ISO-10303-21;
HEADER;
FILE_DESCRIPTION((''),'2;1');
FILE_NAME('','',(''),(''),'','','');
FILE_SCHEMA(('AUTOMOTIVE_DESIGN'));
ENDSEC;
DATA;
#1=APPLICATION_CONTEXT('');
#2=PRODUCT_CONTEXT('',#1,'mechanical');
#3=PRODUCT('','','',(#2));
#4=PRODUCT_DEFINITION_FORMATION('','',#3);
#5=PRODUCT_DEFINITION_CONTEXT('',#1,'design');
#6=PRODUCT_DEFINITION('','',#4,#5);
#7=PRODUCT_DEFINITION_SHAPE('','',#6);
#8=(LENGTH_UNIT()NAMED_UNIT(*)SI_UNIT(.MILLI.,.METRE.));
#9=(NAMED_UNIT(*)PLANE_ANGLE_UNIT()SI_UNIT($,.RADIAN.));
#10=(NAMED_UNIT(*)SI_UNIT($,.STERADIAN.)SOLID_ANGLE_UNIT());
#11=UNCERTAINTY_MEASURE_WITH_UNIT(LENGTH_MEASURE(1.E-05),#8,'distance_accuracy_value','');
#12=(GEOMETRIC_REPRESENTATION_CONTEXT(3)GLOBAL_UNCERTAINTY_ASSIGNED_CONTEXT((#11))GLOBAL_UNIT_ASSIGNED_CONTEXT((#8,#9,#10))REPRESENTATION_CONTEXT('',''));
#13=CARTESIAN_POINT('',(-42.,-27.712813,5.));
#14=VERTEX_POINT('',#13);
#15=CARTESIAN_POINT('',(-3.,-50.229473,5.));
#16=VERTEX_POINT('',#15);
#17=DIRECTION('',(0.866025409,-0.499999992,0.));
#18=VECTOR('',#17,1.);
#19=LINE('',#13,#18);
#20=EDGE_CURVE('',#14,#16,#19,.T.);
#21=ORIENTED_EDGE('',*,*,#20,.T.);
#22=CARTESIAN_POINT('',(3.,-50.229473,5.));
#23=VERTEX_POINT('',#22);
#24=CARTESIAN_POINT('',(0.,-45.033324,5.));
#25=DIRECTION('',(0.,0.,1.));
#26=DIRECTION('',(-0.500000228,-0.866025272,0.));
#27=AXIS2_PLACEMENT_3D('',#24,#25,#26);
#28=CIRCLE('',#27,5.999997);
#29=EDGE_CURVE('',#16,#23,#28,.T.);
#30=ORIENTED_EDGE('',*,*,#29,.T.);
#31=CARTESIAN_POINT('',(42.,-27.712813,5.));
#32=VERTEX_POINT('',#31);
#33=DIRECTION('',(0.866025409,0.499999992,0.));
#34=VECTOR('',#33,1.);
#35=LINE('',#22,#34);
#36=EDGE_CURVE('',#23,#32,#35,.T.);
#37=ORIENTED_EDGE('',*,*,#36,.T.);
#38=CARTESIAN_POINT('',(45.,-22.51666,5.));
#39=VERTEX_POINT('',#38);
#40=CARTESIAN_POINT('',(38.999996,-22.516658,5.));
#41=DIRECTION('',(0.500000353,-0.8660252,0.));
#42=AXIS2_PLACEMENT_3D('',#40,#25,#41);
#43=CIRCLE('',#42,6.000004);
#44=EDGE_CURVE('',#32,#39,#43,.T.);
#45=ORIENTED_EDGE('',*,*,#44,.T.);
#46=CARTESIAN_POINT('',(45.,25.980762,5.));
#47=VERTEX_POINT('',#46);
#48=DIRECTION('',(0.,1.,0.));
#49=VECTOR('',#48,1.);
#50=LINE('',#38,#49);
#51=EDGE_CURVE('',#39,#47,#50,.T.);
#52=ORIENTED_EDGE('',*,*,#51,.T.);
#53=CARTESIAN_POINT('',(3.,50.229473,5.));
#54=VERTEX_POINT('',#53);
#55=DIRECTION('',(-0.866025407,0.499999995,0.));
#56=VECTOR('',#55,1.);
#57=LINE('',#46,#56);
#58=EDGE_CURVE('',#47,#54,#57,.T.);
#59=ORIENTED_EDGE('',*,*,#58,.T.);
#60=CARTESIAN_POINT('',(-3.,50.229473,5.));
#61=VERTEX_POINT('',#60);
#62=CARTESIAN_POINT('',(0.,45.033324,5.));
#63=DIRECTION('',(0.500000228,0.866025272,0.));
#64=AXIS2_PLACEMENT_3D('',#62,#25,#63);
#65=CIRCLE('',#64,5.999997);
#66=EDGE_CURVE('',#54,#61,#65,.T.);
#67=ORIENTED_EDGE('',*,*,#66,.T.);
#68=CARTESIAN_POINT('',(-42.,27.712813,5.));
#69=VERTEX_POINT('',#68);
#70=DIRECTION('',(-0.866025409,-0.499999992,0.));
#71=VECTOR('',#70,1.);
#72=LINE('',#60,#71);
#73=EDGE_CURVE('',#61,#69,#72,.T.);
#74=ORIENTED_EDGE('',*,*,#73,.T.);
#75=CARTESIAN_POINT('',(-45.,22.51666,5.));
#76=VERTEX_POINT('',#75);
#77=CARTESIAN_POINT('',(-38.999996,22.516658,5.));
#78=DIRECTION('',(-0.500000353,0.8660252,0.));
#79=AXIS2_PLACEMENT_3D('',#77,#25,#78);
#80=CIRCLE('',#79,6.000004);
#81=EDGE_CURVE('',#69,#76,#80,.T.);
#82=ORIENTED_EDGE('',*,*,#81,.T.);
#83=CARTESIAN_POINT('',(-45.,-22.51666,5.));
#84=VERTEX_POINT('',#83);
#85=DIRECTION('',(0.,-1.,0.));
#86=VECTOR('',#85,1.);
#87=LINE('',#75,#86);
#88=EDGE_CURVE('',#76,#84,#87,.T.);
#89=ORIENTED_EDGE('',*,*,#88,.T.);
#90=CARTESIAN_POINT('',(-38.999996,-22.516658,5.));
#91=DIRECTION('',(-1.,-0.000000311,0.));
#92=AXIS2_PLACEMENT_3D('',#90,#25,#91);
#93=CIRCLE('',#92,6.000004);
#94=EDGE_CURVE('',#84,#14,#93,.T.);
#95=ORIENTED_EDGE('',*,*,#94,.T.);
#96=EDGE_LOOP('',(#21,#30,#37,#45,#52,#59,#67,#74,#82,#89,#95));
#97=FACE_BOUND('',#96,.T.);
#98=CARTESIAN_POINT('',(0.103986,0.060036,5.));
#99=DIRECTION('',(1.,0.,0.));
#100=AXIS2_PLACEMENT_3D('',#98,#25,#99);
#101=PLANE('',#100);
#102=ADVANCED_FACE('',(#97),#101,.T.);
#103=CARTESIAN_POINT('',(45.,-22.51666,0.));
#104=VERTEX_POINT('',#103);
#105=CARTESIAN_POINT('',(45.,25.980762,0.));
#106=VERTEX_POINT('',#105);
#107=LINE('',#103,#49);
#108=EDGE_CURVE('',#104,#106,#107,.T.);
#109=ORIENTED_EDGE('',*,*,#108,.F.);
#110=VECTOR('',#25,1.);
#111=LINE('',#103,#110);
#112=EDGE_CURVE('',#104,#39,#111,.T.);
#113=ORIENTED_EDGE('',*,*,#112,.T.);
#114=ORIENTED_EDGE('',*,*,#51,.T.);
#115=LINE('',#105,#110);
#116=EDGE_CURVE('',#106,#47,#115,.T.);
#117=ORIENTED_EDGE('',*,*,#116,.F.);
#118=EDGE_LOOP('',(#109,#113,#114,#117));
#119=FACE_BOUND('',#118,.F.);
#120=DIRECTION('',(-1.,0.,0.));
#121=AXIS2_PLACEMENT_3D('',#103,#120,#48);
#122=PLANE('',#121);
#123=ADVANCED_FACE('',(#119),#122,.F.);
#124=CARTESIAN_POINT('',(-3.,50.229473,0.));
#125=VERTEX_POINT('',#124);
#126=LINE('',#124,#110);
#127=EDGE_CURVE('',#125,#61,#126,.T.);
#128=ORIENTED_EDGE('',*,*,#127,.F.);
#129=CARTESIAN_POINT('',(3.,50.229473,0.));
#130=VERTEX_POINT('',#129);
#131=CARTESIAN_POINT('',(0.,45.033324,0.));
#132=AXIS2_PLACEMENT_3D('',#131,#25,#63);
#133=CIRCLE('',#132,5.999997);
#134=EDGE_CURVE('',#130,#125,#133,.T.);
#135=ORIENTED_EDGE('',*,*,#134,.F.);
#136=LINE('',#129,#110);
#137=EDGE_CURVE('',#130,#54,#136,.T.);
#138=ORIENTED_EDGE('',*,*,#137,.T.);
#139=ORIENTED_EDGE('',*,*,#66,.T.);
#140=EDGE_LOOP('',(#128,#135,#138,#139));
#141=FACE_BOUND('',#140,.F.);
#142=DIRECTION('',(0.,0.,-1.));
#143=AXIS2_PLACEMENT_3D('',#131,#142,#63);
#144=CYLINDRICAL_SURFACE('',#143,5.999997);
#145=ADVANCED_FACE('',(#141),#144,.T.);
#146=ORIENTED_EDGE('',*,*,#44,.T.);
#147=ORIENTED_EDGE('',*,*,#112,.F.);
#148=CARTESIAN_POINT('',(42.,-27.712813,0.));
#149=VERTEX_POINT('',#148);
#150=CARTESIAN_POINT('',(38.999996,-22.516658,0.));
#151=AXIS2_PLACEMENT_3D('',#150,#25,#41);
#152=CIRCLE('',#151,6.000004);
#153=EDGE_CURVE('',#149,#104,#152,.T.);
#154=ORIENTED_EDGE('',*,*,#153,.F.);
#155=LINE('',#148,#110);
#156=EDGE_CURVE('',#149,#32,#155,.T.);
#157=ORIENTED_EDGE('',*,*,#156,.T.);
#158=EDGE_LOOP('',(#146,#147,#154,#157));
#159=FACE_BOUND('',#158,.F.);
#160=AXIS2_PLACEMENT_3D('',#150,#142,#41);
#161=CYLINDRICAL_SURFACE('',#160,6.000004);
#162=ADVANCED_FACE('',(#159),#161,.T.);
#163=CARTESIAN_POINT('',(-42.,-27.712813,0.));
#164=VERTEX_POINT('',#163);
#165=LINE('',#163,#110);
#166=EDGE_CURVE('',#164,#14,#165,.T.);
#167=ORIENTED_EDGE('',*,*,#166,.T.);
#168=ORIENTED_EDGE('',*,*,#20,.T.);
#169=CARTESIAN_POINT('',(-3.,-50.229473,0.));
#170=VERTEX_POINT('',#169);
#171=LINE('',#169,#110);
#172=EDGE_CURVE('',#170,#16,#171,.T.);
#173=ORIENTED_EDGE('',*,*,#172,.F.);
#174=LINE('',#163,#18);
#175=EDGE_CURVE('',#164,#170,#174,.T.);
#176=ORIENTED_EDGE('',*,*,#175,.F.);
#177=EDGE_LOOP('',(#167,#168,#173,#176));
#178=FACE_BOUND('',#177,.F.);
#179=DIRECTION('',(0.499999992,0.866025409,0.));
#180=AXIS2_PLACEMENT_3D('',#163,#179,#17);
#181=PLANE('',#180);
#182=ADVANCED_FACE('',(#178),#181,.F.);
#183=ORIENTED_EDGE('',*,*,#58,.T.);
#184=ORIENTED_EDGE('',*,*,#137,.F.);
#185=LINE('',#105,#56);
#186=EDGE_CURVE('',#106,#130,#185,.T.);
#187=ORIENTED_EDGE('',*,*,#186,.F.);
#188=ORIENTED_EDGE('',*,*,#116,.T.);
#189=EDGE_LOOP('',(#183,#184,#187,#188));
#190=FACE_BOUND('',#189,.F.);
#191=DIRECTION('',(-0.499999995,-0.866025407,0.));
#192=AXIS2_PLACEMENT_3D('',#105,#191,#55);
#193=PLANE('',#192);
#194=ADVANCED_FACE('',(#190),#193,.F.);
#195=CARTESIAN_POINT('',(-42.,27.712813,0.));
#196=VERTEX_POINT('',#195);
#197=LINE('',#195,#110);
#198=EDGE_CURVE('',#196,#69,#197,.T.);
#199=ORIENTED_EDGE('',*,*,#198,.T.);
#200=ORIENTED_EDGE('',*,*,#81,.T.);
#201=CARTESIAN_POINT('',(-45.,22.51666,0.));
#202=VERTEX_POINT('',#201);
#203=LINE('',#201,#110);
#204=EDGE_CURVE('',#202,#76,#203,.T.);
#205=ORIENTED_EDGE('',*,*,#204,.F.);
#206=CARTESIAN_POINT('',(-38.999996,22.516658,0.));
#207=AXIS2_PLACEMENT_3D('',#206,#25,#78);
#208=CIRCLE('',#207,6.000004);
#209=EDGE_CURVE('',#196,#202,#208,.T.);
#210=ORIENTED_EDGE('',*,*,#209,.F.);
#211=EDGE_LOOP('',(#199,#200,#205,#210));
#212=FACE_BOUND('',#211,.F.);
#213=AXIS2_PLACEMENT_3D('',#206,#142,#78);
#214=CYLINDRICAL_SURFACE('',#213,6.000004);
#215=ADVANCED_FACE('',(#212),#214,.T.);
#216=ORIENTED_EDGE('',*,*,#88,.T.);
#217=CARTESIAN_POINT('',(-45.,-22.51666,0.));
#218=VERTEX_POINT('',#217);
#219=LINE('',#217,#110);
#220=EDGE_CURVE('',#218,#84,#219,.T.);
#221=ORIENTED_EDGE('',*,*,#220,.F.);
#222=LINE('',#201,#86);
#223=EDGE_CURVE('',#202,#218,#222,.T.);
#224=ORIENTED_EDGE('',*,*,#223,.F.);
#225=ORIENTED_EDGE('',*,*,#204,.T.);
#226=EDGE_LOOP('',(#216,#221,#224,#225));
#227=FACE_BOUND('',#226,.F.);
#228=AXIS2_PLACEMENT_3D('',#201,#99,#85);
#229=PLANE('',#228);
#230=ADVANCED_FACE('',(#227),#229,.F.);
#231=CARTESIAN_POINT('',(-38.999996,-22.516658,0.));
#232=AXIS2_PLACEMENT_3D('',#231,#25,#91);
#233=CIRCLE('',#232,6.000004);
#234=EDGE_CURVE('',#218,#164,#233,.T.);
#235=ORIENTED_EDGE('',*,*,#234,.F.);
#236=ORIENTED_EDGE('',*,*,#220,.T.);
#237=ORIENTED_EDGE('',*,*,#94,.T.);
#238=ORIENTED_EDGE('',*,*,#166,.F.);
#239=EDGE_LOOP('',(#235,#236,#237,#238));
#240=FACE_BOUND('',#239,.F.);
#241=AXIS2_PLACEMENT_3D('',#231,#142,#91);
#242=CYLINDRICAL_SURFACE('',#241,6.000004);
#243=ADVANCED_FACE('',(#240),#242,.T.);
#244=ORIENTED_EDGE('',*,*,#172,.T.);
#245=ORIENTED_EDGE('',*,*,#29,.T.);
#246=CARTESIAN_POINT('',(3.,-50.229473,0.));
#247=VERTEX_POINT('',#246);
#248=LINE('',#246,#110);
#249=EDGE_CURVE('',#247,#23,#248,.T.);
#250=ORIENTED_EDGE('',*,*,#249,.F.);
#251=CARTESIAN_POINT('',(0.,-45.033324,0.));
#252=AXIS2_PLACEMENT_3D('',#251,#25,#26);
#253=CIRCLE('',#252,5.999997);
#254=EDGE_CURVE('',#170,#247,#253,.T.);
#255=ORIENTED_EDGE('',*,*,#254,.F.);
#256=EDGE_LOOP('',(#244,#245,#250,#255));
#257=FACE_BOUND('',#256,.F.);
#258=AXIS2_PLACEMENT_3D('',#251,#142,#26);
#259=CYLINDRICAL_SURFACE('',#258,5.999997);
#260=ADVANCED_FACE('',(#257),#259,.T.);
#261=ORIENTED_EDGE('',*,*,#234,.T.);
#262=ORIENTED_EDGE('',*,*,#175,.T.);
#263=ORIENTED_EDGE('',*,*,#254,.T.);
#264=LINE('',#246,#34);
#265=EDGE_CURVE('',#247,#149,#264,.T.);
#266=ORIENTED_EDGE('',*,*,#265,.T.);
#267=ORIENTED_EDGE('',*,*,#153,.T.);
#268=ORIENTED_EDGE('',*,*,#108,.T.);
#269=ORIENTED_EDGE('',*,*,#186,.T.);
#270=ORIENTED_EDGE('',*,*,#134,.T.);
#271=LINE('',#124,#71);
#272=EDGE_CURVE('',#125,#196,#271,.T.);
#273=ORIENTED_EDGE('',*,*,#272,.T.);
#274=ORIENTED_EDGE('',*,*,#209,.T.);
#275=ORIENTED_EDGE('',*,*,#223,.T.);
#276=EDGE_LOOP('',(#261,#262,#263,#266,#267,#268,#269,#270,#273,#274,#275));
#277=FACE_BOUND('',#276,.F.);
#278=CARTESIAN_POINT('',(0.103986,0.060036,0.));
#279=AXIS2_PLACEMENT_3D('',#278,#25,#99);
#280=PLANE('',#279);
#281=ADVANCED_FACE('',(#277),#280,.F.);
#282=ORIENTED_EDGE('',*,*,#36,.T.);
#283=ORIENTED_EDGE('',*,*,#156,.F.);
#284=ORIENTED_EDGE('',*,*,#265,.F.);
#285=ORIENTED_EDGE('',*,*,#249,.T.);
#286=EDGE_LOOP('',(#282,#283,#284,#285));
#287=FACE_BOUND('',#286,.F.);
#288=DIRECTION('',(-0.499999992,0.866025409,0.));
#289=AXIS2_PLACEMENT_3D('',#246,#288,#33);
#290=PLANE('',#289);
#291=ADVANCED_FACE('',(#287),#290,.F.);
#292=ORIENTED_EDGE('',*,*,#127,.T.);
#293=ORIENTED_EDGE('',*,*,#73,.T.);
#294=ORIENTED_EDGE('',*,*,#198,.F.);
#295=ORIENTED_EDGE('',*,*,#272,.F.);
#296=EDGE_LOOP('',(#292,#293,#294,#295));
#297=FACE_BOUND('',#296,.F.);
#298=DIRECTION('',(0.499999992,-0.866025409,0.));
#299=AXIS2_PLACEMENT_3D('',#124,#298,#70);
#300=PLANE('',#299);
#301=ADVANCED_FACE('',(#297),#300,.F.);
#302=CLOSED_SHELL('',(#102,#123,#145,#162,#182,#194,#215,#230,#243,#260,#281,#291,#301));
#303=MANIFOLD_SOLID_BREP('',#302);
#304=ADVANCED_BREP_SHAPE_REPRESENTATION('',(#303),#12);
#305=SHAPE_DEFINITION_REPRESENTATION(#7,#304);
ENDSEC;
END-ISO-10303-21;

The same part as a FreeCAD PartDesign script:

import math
import FreeCAD as App
import Part
import Sketcher
from FreeCAD import Vector
Q = App.Units.Quantity

doc = App.newDocument("Part")
params = doc.addObject("Spreadsheet::Sheet", "Params")
for row, (alias, value) in enumerate([
    ("pad1_length", "5 mm"),
], start=1):
    params.set(f"A{row}", alias)
    params.set(f"B{row}", "=" + value)
    params.setAlias(f"B{row}", alias)

body = doc.addObject("PartDesign::Body", "Body")

# Sketch on XY plane
sketch1 = body.newObject("Sketcher::SketchObject", "Sketch")
sketch1.AttachmentSupport = (doc.getObject("XY_Plane"), [""])
sketch1.MapMode = "FlatFace"
sketch1.addGeometry([
    Part.LineSegment(Vector(45, 26, 0), Vector(3, 50, 0)),  # 0
    Part.ArcOfCircle(Part.Circle(Vector(0, 45, 0), Vector(0, 0, 1), 6), math.radians(60), math.radians(120)),  # 1
    Part.LineSegment(Vector(-3, 50, 0), Vector(-42, 28, 0)),  # 2
    Part.ArcOfCircle(Part.Circle(Vector(-39, 23, 0), Vector(0, 0, 1), 6), math.radians(120), math.radians(180)),  # 3
    Part.LineSegment(Vector(-45, 23, 0), Vector(-45, -23, 0)),  # 4
    Part.ArcOfCircle(Part.Circle(Vector(-39, -23, 0), Vector(0, 0, 1), 6), math.radians(-180), math.radians(-120)),  # 5
    Part.LineSegment(Vector(-42, -28, 0), Vector(-3, -50, 0)),  # 6
    Part.ArcOfCircle(Part.Circle(Vector(0, -45, 0), Vector(0, 0, 1), 6), math.radians(-120), math.radians(-60)),  # 7
    Part.LineSegment(Vector(3, -50, 0), Vector(42, -28, 0)),  # 8
    Part.ArcOfCircle(Part.Circle(Vector(39, -23, 0), Vector(0, 0, 1), 6), math.radians(-60), math.radians(0)),  # 9
    Part.LineSegment(Vector(45, -23, 0), Vector(45, 26, 0)),  # 10
], False)
sketch1.addConstraint([
    Sketcher.Constraint("Tangent", 0, 2, 1, 1),
    Sketcher.Constraint("Tangent", 1, 2, 2, 1),
    Sketcher.Constraint("Tangent", 2, 2, 3, 1),
    Sketcher.Constraint("Tangent", 3, 2, 4, 1),
    Sketcher.Constraint("Tangent", 4, 2, 5, 1),
    Sketcher.Constraint("Tangent", 5, 2, 6, 1),
    Sketcher.Constraint("Tangent", 6, 2, 7, 1),
    Sketcher.Constraint("Tangent", 7, 2, 8, 1),
    Sketcher.Constraint("Tangent", 8, 2, 9, 1),
    Sketcher.Constraint("Tangent", 9, 2, 10, 1),
    Sketcher.Constraint("Coincident", 10, 2, 0, 1),
    Sketcher.Constraint("Vertical", 4),
    Sketcher.Constraint("Vertical", 10),
    Sketcher.Constraint("Equal", 3, 5),
    Sketcher.Constraint("Equal", 1, 7),
    Sketcher.Constraint("Equal", 5, 9),
    Sketcher.Constraint("Symmetric", 1, 3, 7, 3, -1, 1),
    Sketcher.Constraint("Symmetric", 3, 3, 9, 3, -1, 1),
    Sketcher.Constraint("Symmetric", 0, 2, 1, 2, -2),
    Sketcher.Constraint("Parallel", 0, 6),
    Sketcher.Constraint("Angle", 0, Q("150 deg")),
    Sketcher.Constraint("DistanceX", -1, 1, 0, 2, 3.0),
    Sketcher.Constraint("DistanceX", 2, 2, -1, 1, 42.0),
    Sketcher.Constraint("DistanceX", 3, 2, -1, 1, 45.0),
    Sketcher.Constraint("DistanceY", 4, 2, 4, 1, 45.03332),
])
pad1 = body.newObject("PartDesign::Pad", "Pad")
pad1.Profile = sketch1
pad1.setExpression("Length", "Params.pad1_length")

doc.recompute()
